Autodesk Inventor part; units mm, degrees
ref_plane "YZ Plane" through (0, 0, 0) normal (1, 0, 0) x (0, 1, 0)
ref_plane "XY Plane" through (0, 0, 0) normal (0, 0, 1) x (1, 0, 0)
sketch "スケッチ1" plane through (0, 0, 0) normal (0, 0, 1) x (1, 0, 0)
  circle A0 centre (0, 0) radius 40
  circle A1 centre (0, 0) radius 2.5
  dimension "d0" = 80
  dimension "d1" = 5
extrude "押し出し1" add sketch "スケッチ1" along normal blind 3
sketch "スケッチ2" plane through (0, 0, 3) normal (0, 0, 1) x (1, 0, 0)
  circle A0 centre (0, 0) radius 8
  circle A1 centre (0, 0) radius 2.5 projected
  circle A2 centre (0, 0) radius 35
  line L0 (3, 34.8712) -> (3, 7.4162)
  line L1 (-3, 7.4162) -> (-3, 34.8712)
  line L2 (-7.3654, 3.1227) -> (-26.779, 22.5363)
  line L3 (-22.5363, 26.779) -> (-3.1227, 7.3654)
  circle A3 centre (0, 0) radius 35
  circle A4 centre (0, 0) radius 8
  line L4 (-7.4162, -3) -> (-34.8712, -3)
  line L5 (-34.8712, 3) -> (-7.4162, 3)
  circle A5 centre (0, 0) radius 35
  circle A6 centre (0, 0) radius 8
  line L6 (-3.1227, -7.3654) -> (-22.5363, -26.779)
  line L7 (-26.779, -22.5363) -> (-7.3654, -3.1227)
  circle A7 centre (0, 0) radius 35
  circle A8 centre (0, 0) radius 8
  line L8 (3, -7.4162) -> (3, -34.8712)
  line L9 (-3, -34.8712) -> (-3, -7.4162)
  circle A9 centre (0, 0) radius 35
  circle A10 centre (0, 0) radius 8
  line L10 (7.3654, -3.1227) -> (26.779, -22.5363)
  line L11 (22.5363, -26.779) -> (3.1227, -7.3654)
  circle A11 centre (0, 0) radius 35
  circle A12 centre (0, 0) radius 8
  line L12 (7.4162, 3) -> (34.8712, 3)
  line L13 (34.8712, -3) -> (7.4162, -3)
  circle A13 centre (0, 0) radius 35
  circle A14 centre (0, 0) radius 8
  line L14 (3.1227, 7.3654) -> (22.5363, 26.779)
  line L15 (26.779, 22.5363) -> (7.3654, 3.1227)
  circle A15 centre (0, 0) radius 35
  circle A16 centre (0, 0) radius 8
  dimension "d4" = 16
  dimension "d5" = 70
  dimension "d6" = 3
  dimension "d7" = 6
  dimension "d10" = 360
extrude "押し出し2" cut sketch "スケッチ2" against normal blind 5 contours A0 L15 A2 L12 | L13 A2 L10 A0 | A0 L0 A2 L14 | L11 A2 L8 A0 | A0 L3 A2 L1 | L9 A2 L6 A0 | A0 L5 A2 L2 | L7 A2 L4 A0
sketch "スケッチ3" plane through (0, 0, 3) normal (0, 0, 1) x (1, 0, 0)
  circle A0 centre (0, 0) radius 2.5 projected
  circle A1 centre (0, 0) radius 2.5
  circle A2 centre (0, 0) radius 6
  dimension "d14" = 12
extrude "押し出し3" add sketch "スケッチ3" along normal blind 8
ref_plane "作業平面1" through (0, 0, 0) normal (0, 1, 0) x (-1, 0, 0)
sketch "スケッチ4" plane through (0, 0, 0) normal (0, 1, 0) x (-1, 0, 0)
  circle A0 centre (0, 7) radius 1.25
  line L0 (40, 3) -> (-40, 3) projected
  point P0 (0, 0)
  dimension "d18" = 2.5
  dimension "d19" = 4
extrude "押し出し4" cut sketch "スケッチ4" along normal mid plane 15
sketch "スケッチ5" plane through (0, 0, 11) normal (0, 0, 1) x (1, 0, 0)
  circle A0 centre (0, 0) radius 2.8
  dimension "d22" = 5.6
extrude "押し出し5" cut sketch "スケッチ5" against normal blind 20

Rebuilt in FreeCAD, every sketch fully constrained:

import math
import FreeCAD as App
import Part
import Sketcher

V = App.Vector
Q = App.Units.Quantity

doc = App.newDocument("Part")
body = doc.addObject("PartDesign::Body", "Body")

sketch1 = doc.addObject("Sketcher::SketchObject", "Sketch")
body.addObject(sketch1)
sketch1.AttachmentSupport = (doc.XY_Plane, [""])
sketch1.MapMode = "FlatFace"
sketch1.addGeometry([
    Part.Circle(V(0, 0, 0), V(0, 0, 1), 40),
    Part.Circle(V(0, 0, 0), V(0, 0, 1), 2.5),
], False)
sketch1.addConstraint([
    Sketcher.Constraint("Coincident", 0, 3, -1, 1),
    Sketcher.Constraint("Coincident", 1, 3, -1, 1),
    Sketcher.Constraint("Diameter", 0, Q("80 mm")),
    Sketcher.Constraint("Diameter", 1, Q("5 mm")),
])
pad1 = doc.addObject("PartDesign::Pad", "Pad")
body.addObject(pad1)
pad1.Profile = sketch1
pad1.Length = 3

sketch2 = doc.addObject("Sketcher::SketchObject", "Sketch001")
body.addObject(sketch2)
sketch2.AttachmentSupport = (doc.XY_Plane, [""])
sketch2.MapMode = "FlatFace"
sketch2.AttachmentOffset = App.Placement(V(0, 0, 3), App.Rotation())
sketch2.addGeometry([
    Part.ArcOfCircle(Part.Circle(V(0, 0, 0), V(0, 0, 1), 8), math.radians(22.02), math.radians(22.98)),
    Part.LineSegment(V(7.42, 3, 0), V(34.87, 3, 0)),
    Part.ArcOfCircle(Part.Circle(V(0, 0, 0), V(0, 0, 1), 35), math.radians(5), math.radians(40)),
    Part.LineSegment(V(26.78, 22.54, 0), V(7.37, 3.12, 0)),
    Part.LineSegment(V(34.87, -3, 0), V(7.42, -3, 0)),
    Part.ArcOfCircle(Part.Circle(V(0, 0, 0), V(0, 0, 1), 8), math.radians(-22.98), math.radians(-22.02)),
    Part.LineSegment(V(7.37, -3.12, 0), V(26.78, -22.54, 0)),
    Part.ArcOfCircle(Part.Circle(V(0, 0, 0), V(0, 0, 1), 35), math.radians(-40), math.radians(-5)),
    Part.ArcOfCircle(Part.Circle(V(0, 0, 0), V(0, 0, 1), 8), math.radians(67.02), math.radians(67.98)),
    Part.LineSegment(V(3.12, 7.37, 0), V(22.54, 26.78, 0)),
    Part.ArcOfCircle(Part.Circle(V(0, 0, 0), V(0, 0, 1), 35), math.radians(50), math.radians(85)),
    Part.LineSegment(V(3, 34.87, 0), V(3, 7.42, 0)),
    Part.LineSegment(V(22.54, -26.78, 0), V(3.12, -7.37, 0)),
    Part.ArcOfCircle(Part.Circle(V(0, 0, 0), V(0, 0, 1), 8), math.radians(-67.98), math.radians(-67.02)),
    Part.LineSegment(V(3, -7.42, 0), V(3, -34.87, 0)),
    Part.ArcOfCircle(Part.Circle(V(0, 0, 0), V(0, 0, 1), 35), math.radians(-85), math.radians(-50)),
    Part.ArcOfCircle(Part.Circle(V(0, 0, 0), V(0, 0, 1), 8), math.radians(112.02), math.radians(112.98)),
    Part.LineSegment(V(-3, 7.42, 0), V(-3, 34.87, 0)),
    Part.ArcOfCircle(Part.Circle(V(0, 0, 0), V(0, 0, 1), 35), math.radians(95), math.radians(130)),
    Part.LineSegment(V(-22.54, 26.78, 0), V(-3.12, 7.37, 0)),
    Part.LineSegment(V(-3, -34.87, 0), V(-3, -7.42, 0)),
    Part.ArcOfCircle(Part.Circle(V(0, 0, 0), V(0, 0, 1), 8), math.radians(-112.98), math.radians(-112.02)),
    Part.LineSegment(V(-3.12, -7.37, 0), V(-22.54, -26.78, 0)),
    Part.ArcOfCircle(Part.Circle(V(0, 0, 0), V(0, 0, 1), 35), math.radians(-130), math.radians(-95)),
    Part.ArcOfCircle(Part.Circle(V(0, 0, 0), V(0, 0, 1), 8), math.radians(157.02), math.radians(157.98)),
    Part.LineSegment(V(-7.37, 3.12, 0), V(-26.78, 22.54, 0)),
    Part.ArcOfCircle(Part.Circle(V(0, 0, 0), V(0, 0, 1), 35), math.radians(140), math.radians(175)),
    Part.LineSegment(V(-34.87, 3, 0), V(-7.42, 3, 0)),
    Part.LineSegment(V(-26.78, -22.54, 0), V(-7.37, -3.12, 0)),
    Part.ArcOfCircle(Part.Circle(V(0, 0, 0), V(0, 0, 1), 8), math.radians(-157.98), math.radians(-157.02)),
    Part.LineSegment(V(-7.42, -3, 0), V(-34.87, -3, 0)),
    Part.ArcOfCircle(Part.Circle(V(0, 0, 0), V(0, 0, 1), 35), math.radians(-175), math.radians(-140)),
], False)
sketch2.addConstraint([
    Sketcher.Constraint("Coincident", 0, 1, 1, 1),
    Sketcher.Constraint("Coincident", 1, 2, 2, 1),
    Sketcher.Constraint("Coincident", 2, 2, 3, 1),
    Sketcher.Constraint("Coincident", 3, 2, 0, 2),
    Sketcher.Constraint("Coincident", 4, 2, 5, 2),
    Sketcher.Constraint("Coincident", 5, 1, 6, 1),
    Sketcher.Constraint("Coincident", 6, 2, 7, 1),
    Sketcher.Constraint("Coincident", 7, 2, 4, 1),
    Sketcher.Constraint("Coincident", 8, 1, 9, 1),
    Sketcher.Constraint("Coincident", 9, 2, 10, 1),
    Sketcher.Constraint("Coincident", 10, 2, 11, 1),
    Sketcher.Constraint("Coincident", 11, 2, 8, 2),
    Sketcher.Constraint("Coincident", 12, 2, 13, 2),
    Sketcher.Constraint("Coincident", 13, 1, 14, 1),
    Sketcher.Constraint("Coincident", 14, 2, 15, 1),
    Sketcher.Constraint("Coincident", 15, 2, 12, 1),
    Sketcher.Constraint("Coincident", 16, 1, 17, 1),
    Sketcher.Constraint("Coincident", 17, 2, 18, 1),
    Sketcher.Constraint("Coincident", 18, 2, 19, 1),
    Sketcher.Constraint("Coincident", 19, 2, 16, 2),
    Sketcher.Constraint("Coincident", 20, 2, 21, 2),
    Sketcher.Constraint("Coincident", 21, 1, 22, 1),
    Sketcher.Constraint("Coincident", 22, 2, 23, 1),
    Sketcher.Constraint("Coincident", 23, 2, 20, 1),
    Sketcher.Constraint("Coincident", 24, 1, 25, 1),
    Sketcher.Constraint("Coincident", 25, 2, 26, 1),
    Sketcher.Constraint("Coincident", 26, 2, 27, 1),
    Sketcher.Constraint("Coincident", 27, 2, 24, 2),
    Sketcher.Constraint("Coincident", 28, 2, 29, 2),
    Sketcher.Constraint("Coincident", 29, 1, 30, 1),
    Sketcher.Constraint("Coincident", 30, 2, 31, 1),
    Sketcher.Constraint("Coincident", 31, 2, 28, 1),
    Sketcher.Constraint("Horizontal", 1),
    Sketcher.Constraint("Horizontal", 4),
    Sketcher.Constraint("Vertical", 11),
    Sketcher.Constraint("Vertical", 14),
    Sketcher.Constraint("Vertical", 17),
    Sketcher.Constraint("Vertical", 20),
    Sketcher.Constraint("Horizontal", 27),
    Sketcher.Constraint("Horizontal", 30),
    Sketcher.Constraint("Coincident", 0, 3, -1, 1),
    Sketcher.Constraint("Coincident", 2, 3, -1, 1),
    Sketcher.Constraint("Coincident", 5, 3, -1, 1),
    Sketcher.Constraint("Coincident", 7, 3, -1, 1),
    Sketcher.Constraint("Coincident", 8, 3, -1, 1),
    Sketcher.Constraint("Coincident", 10, 3, -1, 1),
    Sketcher.Constraint("Coincident", 13, 3, -1, 1),
    Sketcher.Constraint("Coincident", 15, 3, -1, 1),
    Sketcher.Constraint("Coincident", 16, 3, -1, 1),
    Sketcher.Constraint("Coincident", 18, 3, -1, 1),
    Sketcher.Constraint("Coincident", 21, 3, -1, 1),
    Sketcher.Constraint("Coincident", 23, 3, -1, 1),
    Sketcher.Constraint("Coincident", 24, 3, -1, 1),
    Sketcher.Constraint("Coincident", 26, 3, -1, 1),
    Sketcher.Constraint("Coincident", 29, 3, -1, 1),
    Sketcher.Constraint("Coincident", 31, 3, -1, 1),
    Sketcher.Constraint("Equal", 0, 5),
    Sketcher.Constraint("Equal", 2, 7),
    Sketcher.Constraint("Equal", 5, 8),
    Sketcher.Constraint("Equal", 7, 10),
    Sketcher.Constraint("Equal", 8, 13),
    Sketcher.Constraint("Equal", 10, 15),
    Sketcher.Constraint("Equal", 13, 16),
    Sketcher.Constraint("Equal", 15, 18),
    Sketcher.Constraint("Equal", 16, 21),
    Sketcher.Constraint("Equal", 18, 23),
    Sketcher.Constraint("Equal", 21, 24),
    Sketcher.Constraint("Equal", 23, 26),
    Sketcher.Constraint("Equal", 24, 29),
    Sketcher.Constraint("Equal", 26, 31),
    Sketcher.Constraint("Perpendicular", 3, 6),
    Sketcher.Constraint("Perpendicular", 6, 9),
    Sketcher.Constraint("Perpendicular", 9, 12),
    Sketcher.Constraint("Parallel", 12, 19),
    Sketcher.Constraint("Perpendicular", 19, 22),
    Sketcher.Constraint("Perpendicular", 22, 25),
    Sketcher.Constraint("Perpendicular", 25, 28),
    Sketcher.Constraint("Horizontal", 11, 2, 16, 1),
    Sketcher.Constraint("Horizontal", 9, 2, 18, 2),
    Sketcher.Constraint("Horizontal", 8, 1, 19, 2),
    Sketcher.Constraint("Horizontal", 13, 1, 20, 2),
    Sketcher.Constraint("Horizontal", 12, 2, 21, 1),
    Sketcher.Constraint("Horizontal", 3, 2, 24, 1),
    Sketcher.Constraint("Horizontal", 1, 2, 26, 2),
    Sketcher.Constraint("Horizontal", 5, 1, 28, 2),
    Sketcher.Constraint("Horizontal", 7, 2, 29, 1),
    Sketcher.Constraint("Vertical", 0, 1, 4, 2),
    Sketcher.Constraint("Vertical", 3, 2, 5, 1),
    Sketcher.Constraint("Vertical", 8, 1, 12, 2),
    Sketcher.Constraint("Vertical", 11, 2, 13, 1),
    Sketcher.Constraint("Equal", 30, 11),
    Sketcher.Constraint("Equal", 6, 9),
    Sketcher.Constraint("Radius", 0, Q("8 mm")),
    Sketcher.Constraint("Radius", 2, Q("35 mm")),
    Sketcher.Constraint("DistanceY", -1, 1, 0, 1, Q("3 mm")),
    Sketcher.Constraint("DistanceX", 0, 1, 9, 2, Q("15.12 mm")),
])
pocket1 = doc.addObject("PartDesign::Pocket", "Pocket")
body.addObject(pocket1)
pocket1.Profile = sketch2
pocket1.Length = 5

sketch3 = doc.addObject("Sketcher::SketchObject", "Sketch002")
body.addObject(sketch3)
sketch3.AttachmentSupport = (doc.XY_Plane, [""])
sketch3.MapMode = "FlatFace"
sketch3.AttachmentOffset = App.Placement(V(0, 0, 3), App.Rotation())
sketch3.addGeometry([
    Part.Circle(V(0, 0, 0), V(0, 0, 1), 6),
    Part.Circle(V(0, 0, 0), V(0, 0, 1), 2.5),
], False)
sketch3.addConstraint([
    Sketcher.Constraint("Coincident", 0, 3, -1, 1),
    Sketcher.Constraint("Coincident", 1, 3, -1, 1),
    Sketcher.Constraint("Diameter", 0, Q("12 mm")),
    Sketcher.Constraint("Diameter", 1, Q("5 mm")),
])
pad2 = doc.addObject("PartDesign::Pad", "Pad001")
body.addObject(pad2)
pad2.Profile = sketch3
pad2.Length = 8

sketch4 = doc.addObject("Sketcher::SketchObject", "Sketch003")
body.addObject(sketch4)
sketch4.AttachmentSupport = (doc.XZ_Plane, [""])
sketch4.MapMode = "FlatFace"
sketch4.addGeometry(Part.Circle(V(0, 7, 0), V(0, 0, 1), 1.2), False)
sketch4.addConstraint([
    Sketcher.Constraint("PointOnObject", 0, 3, -2),
    Sketcher.Constraint("Diameter", 0, Q("2.5 mm")),
    Sketcher.Constraint("DistanceY", -1, 1, 0, 3, Q("7 mm")),
])
pocket2 = doc.addObject("PartDesign::Pocket", "Pocket001")
body.addObject(pocket2)
pocket2.Profile = sketch4
pocket2.Length = 15
pocket2.Midplane = True

sketch5 = doc.addObject("Sketcher::SketchObject", "Sketch004")
body.addObject(sketch5)
sketch5.AttachmentSupport = (doc.XY_Plane, [""])
sketch5.MapMode = "FlatFace"
sketch5.AttachmentOffset = App.Placement(V(0, 0, 11), App.Rotation())
sketch5.addGeometry(Part.Circle(V(0, 0, 0), V(0, 0, 1), 2.8), False)
sketch5.addConstraint([
    Sketcher.Constraint("Coincident", 0, 3, -1, 1),
    Sketcher.Constraint("Diameter", 0, Q("5.6 mm")),
])
pocket3 = doc.addObject("PartDesign::Pocket", "Pocket002")
body.addObject(pocket3)
pocket3.Profile = sketch5
pocket3.Length = 20

doc.recompute()
